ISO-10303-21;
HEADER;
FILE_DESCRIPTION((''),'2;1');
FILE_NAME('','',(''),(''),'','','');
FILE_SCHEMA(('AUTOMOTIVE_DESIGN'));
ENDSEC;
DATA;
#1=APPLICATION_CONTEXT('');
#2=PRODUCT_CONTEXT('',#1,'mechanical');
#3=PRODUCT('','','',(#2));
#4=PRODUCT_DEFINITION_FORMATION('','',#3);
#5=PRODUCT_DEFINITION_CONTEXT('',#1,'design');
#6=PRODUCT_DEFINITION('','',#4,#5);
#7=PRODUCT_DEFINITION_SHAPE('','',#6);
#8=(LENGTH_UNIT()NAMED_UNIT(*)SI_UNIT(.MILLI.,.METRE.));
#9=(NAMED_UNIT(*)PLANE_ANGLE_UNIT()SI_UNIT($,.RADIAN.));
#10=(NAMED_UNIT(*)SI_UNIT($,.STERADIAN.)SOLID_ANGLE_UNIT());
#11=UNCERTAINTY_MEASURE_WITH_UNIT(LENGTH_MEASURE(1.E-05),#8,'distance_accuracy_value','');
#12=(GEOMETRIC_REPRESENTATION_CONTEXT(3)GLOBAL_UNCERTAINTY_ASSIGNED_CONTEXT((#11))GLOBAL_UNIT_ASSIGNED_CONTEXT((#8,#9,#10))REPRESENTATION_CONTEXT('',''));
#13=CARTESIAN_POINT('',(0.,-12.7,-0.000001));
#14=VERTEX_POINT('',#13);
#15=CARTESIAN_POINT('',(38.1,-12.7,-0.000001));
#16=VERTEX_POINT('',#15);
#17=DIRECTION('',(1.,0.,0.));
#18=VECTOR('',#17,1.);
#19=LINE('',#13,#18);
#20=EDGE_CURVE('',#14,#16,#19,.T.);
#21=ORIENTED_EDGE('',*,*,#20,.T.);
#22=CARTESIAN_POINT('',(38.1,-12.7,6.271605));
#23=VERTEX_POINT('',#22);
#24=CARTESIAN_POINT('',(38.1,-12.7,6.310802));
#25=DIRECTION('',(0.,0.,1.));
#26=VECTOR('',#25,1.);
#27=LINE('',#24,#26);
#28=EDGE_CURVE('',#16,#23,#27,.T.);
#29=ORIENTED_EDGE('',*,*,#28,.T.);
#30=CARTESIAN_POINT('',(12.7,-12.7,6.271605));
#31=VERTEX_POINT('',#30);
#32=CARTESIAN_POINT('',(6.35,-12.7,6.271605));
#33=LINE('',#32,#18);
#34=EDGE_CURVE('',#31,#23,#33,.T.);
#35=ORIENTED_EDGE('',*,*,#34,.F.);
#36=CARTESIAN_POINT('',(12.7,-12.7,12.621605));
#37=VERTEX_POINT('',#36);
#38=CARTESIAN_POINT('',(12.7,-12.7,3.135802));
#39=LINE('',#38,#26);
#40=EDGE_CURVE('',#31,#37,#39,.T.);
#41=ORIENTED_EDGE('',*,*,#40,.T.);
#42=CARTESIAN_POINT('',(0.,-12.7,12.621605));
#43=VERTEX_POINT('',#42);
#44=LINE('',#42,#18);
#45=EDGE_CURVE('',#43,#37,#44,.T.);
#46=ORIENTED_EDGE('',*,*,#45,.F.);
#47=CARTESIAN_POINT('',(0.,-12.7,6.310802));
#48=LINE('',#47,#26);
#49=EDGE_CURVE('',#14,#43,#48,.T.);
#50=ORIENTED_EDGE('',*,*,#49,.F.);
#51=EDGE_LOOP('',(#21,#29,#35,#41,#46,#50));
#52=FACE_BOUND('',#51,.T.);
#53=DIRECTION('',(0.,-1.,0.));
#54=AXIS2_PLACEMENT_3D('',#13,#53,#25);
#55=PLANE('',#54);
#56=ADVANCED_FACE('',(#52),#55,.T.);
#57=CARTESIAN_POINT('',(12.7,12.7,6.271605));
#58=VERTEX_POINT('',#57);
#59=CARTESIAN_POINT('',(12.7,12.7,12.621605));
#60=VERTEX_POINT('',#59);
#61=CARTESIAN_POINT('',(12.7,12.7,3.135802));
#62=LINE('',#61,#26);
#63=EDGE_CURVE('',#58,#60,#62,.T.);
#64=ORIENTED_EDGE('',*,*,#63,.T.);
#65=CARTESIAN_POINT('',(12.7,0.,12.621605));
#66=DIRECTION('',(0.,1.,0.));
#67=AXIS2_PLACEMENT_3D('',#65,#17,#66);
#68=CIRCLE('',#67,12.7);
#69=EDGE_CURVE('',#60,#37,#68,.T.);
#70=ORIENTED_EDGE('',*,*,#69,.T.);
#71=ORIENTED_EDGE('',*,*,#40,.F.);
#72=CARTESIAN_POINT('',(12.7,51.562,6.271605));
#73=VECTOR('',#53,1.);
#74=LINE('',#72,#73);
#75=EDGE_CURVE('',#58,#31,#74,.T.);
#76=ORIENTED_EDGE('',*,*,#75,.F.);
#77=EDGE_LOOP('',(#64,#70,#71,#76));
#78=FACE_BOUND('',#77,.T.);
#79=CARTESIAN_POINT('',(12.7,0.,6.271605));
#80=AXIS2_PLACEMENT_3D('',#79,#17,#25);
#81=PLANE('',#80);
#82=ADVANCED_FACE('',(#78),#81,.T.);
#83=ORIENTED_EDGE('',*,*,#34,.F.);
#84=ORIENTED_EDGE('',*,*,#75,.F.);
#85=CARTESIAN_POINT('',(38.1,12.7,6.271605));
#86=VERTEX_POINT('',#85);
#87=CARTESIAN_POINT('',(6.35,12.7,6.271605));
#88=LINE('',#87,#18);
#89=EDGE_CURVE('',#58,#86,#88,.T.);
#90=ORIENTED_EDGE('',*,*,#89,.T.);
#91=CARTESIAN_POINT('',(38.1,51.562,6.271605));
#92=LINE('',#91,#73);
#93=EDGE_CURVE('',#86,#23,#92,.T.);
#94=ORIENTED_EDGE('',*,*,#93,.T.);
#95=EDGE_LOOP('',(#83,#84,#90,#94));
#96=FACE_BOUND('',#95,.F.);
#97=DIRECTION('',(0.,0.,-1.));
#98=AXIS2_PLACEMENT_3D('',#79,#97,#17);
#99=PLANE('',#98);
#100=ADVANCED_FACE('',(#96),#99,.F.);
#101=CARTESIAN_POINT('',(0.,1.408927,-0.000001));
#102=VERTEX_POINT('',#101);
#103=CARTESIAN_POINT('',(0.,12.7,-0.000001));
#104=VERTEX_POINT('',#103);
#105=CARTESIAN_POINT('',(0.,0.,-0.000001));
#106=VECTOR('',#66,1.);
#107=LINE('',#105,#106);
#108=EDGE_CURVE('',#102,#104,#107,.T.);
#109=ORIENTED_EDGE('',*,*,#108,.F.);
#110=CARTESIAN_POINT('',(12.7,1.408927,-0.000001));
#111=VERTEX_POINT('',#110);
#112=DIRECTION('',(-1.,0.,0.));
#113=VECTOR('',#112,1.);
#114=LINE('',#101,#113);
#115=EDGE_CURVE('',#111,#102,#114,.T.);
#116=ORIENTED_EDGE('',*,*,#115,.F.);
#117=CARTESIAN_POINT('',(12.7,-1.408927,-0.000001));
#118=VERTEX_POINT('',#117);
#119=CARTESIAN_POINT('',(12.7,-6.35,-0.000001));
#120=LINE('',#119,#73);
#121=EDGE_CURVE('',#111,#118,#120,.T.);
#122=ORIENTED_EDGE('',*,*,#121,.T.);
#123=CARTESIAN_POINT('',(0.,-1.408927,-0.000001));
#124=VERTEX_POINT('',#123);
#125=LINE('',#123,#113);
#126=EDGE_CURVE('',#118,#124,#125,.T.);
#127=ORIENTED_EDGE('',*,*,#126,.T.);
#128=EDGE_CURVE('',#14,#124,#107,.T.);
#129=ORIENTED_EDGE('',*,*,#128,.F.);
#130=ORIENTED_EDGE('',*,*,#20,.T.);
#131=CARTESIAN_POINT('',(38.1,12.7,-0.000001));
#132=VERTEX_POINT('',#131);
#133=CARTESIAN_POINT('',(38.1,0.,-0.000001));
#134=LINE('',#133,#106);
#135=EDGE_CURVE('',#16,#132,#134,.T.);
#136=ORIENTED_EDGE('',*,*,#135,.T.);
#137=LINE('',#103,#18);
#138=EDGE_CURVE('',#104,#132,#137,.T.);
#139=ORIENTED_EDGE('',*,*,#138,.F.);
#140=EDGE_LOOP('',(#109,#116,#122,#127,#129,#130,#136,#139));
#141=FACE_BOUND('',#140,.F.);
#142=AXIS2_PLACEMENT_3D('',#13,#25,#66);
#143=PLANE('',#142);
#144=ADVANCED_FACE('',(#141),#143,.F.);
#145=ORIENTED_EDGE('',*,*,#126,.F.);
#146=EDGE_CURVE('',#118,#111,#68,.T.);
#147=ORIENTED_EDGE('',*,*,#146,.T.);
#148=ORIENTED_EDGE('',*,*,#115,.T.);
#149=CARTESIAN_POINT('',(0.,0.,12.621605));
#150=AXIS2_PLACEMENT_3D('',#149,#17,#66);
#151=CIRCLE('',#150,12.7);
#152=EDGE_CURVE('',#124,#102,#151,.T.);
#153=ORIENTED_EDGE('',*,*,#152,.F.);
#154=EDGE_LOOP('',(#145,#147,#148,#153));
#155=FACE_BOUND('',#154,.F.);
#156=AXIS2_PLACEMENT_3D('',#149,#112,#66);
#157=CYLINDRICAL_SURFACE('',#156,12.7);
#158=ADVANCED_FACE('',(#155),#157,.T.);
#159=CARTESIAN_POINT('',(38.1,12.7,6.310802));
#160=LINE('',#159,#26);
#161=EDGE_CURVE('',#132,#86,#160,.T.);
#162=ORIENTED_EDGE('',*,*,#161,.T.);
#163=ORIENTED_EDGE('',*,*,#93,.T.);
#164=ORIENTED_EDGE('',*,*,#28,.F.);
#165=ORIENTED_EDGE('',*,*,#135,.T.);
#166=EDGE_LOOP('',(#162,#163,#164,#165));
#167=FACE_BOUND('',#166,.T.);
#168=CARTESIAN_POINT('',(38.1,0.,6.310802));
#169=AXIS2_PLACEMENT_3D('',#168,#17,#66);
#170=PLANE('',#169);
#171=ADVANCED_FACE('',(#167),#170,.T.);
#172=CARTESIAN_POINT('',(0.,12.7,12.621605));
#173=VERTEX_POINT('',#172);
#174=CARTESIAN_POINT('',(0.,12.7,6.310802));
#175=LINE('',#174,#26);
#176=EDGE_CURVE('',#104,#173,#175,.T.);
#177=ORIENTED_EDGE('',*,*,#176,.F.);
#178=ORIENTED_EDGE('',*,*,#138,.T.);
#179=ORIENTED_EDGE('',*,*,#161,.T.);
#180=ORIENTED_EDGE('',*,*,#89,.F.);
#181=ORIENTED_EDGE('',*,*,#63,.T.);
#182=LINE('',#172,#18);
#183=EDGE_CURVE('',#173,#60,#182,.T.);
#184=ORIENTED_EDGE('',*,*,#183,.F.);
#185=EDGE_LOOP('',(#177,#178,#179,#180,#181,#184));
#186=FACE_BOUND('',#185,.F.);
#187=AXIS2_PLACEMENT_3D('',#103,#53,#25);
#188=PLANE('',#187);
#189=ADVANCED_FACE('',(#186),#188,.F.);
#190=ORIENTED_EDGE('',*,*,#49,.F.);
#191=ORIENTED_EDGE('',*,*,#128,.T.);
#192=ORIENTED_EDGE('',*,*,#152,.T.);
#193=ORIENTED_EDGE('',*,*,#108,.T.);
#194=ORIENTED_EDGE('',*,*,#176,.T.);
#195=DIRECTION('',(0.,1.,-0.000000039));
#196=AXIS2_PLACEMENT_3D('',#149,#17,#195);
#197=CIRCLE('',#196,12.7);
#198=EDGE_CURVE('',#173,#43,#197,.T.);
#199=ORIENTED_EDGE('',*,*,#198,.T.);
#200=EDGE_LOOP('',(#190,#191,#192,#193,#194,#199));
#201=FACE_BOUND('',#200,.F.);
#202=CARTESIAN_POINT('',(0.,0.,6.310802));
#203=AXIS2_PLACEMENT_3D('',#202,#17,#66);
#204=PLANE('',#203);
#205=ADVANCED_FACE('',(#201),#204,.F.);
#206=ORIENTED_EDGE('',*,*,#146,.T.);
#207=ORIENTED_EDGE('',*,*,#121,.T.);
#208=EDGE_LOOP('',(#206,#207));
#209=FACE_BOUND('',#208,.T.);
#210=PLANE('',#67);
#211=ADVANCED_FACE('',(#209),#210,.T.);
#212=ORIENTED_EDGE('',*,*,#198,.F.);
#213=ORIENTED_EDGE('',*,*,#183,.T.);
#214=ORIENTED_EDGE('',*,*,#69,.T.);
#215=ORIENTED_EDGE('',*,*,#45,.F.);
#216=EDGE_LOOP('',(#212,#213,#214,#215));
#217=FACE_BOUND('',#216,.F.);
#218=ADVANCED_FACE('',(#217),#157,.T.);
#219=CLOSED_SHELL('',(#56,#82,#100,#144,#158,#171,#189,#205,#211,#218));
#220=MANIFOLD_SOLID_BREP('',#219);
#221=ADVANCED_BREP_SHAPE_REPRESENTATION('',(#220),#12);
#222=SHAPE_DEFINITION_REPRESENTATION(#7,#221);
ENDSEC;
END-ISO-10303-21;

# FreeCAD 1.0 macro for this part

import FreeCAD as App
import Part
import Sketcher
from FreeCAD import Vector
Q = App.Units.Quantity


def add_polygon(sketch, points):
    """Adds a closed chain of lines whose ends are joined by coincident constraints."""
    first, n = sketch.GeometryCount, len(points)
    for a, b in zip(points, points[1:] + points[:1]):
        sketch.addGeometry(Part.LineSegment(App.Vector(*a, 0), App.Vector(*b, 0)), False)
    for i in range(n):
        sketch.addConstraint(Sketcher.Constraint("Coincident", first + i, 2, first + (i + 1) % n, 1))

doc = App.newDocument("Part")
params = doc.addObject("Spreadsheet::Sheet", "Params")
for row, (alias, value) in enumerate([
    ("sketch1_diameter", "1 in"),
    ("pad1_length", "0.5 in"),
    ("sketch2_width", "1 in"),
    ("pad2_length", "1.5 in"),
    ("sketch3_width", "1 in"),
    ("sketch3_height", "0.25 in"),
    ("pocket1_length", "4.06 in"),
], start=1):
    params.set(f"A{row}", alias)
    params.set(f"B{row}", "=" + value)
    params.setAlias(f"B{row}", alias)

body = doc.addObject("PartDesign::Body", "Body")

sketch1 = body.newObject("Sketcher::SketchObject", "Sketch")
sketch1.AttachmentSupport = (doc.getObject("YZ_Plane"), [""])
sketch1.MapMode = "FlatFace"
sketch1.addGeometry(Part.Circle(Vector(0, 12.621605, 0), Vector(0, 0, 1), 12.7), False)
sketch1.addConstraint([
    Sketcher.Constraint("PointOnObject", 0, 3, -2),
    Sketcher.Constraint("Diameter", 0, Q("1 in")),
    Sketcher.Constraint("DistanceY", -1, 1, 0, 3, Q("12.621605 mm")),
])
sketch1.setExpression("Constraints[1]", "Params.sketch1_diameter")
pad1 = body.newObject("PartDesign::Pad", "Pad")
pad1.Profile = sketch1
pad1.setExpression("Length", "Params.pad1_length")

sketch2 = body.newObject("Sketcher::SketchObject", "Sketch001")
sketch2.AttachmentSupport = (doc.getObject("YZ_Plane"), [""])
sketch2.MapMode = "FlatFace"
add_polygon(sketch2, [(-12.7, 12.621605), (-12.7, 0), (12.7, 0), (12.7, 12.621605)])
sketch2.addConstraint([
    Sketcher.Constraint("Vertical", 0),
    Sketcher.Constraint("Horizontal", 1),
    Sketcher.Constraint("Vertical", 2),
    Sketcher.Constraint("Horizontal", 3),
    Sketcher.Constraint("Symmetric", 0, 2, 1, 2, -1, 1),
    Sketcher.Constraint("DistanceX", 1, 1, 1, 2, Q("1 in")),
    Sketcher.Constraint("DistanceY", 0, 2, 0, 1, Q("12.621605 mm")),
])
sketch2.setExpression("Constraints[9]", "Params.sketch2_width")
pad2 = body.newObject("PartDesign::Pad", "Pad001")
pad2.Profile = sketch2
pad2.setExpression("Length", "Params.pad2_length")

sketch3 = body.newObject("Sketcher::SketchObject", "Sketch002")
sketch3.AttachmentSupport = (doc.getObject("XZ_Plane"), [""])
sketch3.MapMode = "FlatFace"
add_polygon(sketch3, [(12.7, 12.621605), (12.7, 6.271605), (38.1, 6.271605), (38.1, 12.621605)])
sketch3.addConstraint([
    Sketcher.Constraint("Vertical", 0),
    Sketcher.Constraint("Horizontal", 1),
    Sketcher.Constraint("Vertical", 2),
    Sketcher.Constraint("Horizontal", 3),
    Sketcher.Constraint("DistanceX", 1, 1, 1, 2, Q("1 in")),
    Sketcher.Constraint("DistanceY", 0, 2, 0, 1, Q("0.25 in")),
    Sketcher.Constraint("DistanceX", -1, 1, 0, 2, Q("0.5 in")),
    Sketcher.Constraint("DistanceY", -1, 1, 0, 2, Q("6.271605 mm")),
])
sketch3.setExpression("Constraints[8]", "Params.sketch3_width")
sketch3.setExpression("Constraints[9]", "Params.sketch3_height")
pocket1 = body.newObject("PartDesign::Pocket", "Pocket")
pocket1.Profile = sketch3
pocket1.setExpression("Length", "Params.pocket1_length")
pocket1.Midplane = True

doc.recompute()
